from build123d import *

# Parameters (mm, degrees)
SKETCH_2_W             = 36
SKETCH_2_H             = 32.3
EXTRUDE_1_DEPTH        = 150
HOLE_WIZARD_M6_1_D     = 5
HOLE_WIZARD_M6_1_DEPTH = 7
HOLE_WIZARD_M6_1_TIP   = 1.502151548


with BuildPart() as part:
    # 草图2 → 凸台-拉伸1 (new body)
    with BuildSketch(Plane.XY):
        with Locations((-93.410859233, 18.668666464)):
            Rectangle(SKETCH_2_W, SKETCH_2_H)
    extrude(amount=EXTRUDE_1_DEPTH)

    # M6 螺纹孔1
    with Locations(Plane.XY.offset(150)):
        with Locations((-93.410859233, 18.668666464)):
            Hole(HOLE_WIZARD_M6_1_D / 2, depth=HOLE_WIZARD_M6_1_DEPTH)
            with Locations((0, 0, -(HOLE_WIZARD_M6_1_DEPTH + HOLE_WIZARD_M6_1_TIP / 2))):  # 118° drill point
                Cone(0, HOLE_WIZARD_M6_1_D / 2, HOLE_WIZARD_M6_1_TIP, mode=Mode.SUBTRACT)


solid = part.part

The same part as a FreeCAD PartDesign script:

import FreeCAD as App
import Part
import Sketcher
Q = App.Units.Quantity


def add_polygon(sketch, points):
    """Adds a closed chain of lines whose ends are joined by coincident constraints."""
    first, n = sketch.GeometryCount, len(points)
    for a, b in zip(points, points[1:] + points[:1]):
        sketch.addGeometry(Part.LineSegment(App.Vector(*a, 0), App.Vector(*b, 0)), False)
    for i in range(n):
        sketch.addConstraint(Sketcher.Constraint("Coincident", first + i, 2, first + (i + 1) % n, 1))

doc = App.newDocument("Part")
params = doc.addObject("Spreadsheet::Sheet", "Params")
for row, (alias, value) in enumerate([
    ("sketch1_width", "36 mm"),
    ("sketch1_height", "32.3 mm"),
    ("pad1_length", "150 mm"),
    ("sketch2_diameter", "5 mm"),
    ("hole_diameter", "5 mm"),
    ("hole_depth", "7 mm"),
], start=1):
    params.set(f"A{row}", alias)
    params.set(f"B{row}", "=" + value)
    params.setAlias(f"B{row}", alias)

body = doc.addObject("PartDesign::Body", "Body")

sketch1 = body.newObject("Sketcher::SketchObject", "Sketch")
sketch1.AttachmentSupport = (doc.getObject("XY_Plane"), [""])
sketch1.MapMode = "FlatFace"
add_polygon(sketch1, [(-111, 35), (-111, 3), (-75, 3), (-75, 35)])
sketch1.addConstraint([
    Sketcher.Constraint("Vertical", 0),
    Sketcher.Constraint("Horizontal", 1),
    Sketcher.Constraint("Vertical", 2),
    Sketcher.Constraint("Horizontal", 3),
    Sketcher.Constraint("DistanceX", 1, 1, 1, 2, Q("36 mm")),
    Sketcher.Constraint("DistanceY", 0, 2, 0, 1, Q("32.3 mm")),
    Sketcher.Constraint("DistanceX", 0, 2, -1, 1, Q("111.410859 mm")),
    Sketcher.Constraint("DistanceY", -1, 1, 0, 2, Q("2.518666 mm")),
])
sketch1.setExpression("Constraints[8]", "Params.sketch1_width")
sketch1.setExpression("Constraints[9]", "Params.sketch1_height")
pad1 = body.newObject("PartDesign::Pad", "Pad")
pad1.Profile = sketch1
pad1.setExpression("Length", "Params.pad1_length")

sketch2 = body.newObject("Sketcher::SketchObject", "Sketch001")
sketch2.AttachmentSupport = (doc.getObject("XY_Plane"), [""])
sketch2.MapMode = "FlatFace"
sketch2.AttachmentOffset = App.Placement(App.Vector(0, 0, 150), App.Rotation())
sketch2.addGeometry(Part.Circle(App.Vector(-93.4, 18.7, 0), App.Vector(0, 0, 1), 2.5), False)
sketch2.addConstraint([
    Sketcher.Constraint("Diameter", 0, Q("5 mm")),
    Sketcher.Constraint("DistanceX", 0, 3, -1, 1, Q("93.410859 mm")),
    Sketcher.Constraint("DistanceY", -1, 1, 0, 3, Q("18.668666 mm")),
])
sketch2.setExpression("Constraints[0]", "Params.sketch2_diameter")
doc.recompute()
hole = body.newObject("PartDesign::Hole", "Hole")
hole.Profile = sketch2
hole.ThreadType = "None"
hole.setExpression("Diameter", "Params.hole_diameter")
hole.DepthType = "Dimension"
hole.setExpression("Depth", "Params.hole_depth")
hole.DrillPoint = "Angled"
hole.DrillPointAngle = 118

doc.recompute()
